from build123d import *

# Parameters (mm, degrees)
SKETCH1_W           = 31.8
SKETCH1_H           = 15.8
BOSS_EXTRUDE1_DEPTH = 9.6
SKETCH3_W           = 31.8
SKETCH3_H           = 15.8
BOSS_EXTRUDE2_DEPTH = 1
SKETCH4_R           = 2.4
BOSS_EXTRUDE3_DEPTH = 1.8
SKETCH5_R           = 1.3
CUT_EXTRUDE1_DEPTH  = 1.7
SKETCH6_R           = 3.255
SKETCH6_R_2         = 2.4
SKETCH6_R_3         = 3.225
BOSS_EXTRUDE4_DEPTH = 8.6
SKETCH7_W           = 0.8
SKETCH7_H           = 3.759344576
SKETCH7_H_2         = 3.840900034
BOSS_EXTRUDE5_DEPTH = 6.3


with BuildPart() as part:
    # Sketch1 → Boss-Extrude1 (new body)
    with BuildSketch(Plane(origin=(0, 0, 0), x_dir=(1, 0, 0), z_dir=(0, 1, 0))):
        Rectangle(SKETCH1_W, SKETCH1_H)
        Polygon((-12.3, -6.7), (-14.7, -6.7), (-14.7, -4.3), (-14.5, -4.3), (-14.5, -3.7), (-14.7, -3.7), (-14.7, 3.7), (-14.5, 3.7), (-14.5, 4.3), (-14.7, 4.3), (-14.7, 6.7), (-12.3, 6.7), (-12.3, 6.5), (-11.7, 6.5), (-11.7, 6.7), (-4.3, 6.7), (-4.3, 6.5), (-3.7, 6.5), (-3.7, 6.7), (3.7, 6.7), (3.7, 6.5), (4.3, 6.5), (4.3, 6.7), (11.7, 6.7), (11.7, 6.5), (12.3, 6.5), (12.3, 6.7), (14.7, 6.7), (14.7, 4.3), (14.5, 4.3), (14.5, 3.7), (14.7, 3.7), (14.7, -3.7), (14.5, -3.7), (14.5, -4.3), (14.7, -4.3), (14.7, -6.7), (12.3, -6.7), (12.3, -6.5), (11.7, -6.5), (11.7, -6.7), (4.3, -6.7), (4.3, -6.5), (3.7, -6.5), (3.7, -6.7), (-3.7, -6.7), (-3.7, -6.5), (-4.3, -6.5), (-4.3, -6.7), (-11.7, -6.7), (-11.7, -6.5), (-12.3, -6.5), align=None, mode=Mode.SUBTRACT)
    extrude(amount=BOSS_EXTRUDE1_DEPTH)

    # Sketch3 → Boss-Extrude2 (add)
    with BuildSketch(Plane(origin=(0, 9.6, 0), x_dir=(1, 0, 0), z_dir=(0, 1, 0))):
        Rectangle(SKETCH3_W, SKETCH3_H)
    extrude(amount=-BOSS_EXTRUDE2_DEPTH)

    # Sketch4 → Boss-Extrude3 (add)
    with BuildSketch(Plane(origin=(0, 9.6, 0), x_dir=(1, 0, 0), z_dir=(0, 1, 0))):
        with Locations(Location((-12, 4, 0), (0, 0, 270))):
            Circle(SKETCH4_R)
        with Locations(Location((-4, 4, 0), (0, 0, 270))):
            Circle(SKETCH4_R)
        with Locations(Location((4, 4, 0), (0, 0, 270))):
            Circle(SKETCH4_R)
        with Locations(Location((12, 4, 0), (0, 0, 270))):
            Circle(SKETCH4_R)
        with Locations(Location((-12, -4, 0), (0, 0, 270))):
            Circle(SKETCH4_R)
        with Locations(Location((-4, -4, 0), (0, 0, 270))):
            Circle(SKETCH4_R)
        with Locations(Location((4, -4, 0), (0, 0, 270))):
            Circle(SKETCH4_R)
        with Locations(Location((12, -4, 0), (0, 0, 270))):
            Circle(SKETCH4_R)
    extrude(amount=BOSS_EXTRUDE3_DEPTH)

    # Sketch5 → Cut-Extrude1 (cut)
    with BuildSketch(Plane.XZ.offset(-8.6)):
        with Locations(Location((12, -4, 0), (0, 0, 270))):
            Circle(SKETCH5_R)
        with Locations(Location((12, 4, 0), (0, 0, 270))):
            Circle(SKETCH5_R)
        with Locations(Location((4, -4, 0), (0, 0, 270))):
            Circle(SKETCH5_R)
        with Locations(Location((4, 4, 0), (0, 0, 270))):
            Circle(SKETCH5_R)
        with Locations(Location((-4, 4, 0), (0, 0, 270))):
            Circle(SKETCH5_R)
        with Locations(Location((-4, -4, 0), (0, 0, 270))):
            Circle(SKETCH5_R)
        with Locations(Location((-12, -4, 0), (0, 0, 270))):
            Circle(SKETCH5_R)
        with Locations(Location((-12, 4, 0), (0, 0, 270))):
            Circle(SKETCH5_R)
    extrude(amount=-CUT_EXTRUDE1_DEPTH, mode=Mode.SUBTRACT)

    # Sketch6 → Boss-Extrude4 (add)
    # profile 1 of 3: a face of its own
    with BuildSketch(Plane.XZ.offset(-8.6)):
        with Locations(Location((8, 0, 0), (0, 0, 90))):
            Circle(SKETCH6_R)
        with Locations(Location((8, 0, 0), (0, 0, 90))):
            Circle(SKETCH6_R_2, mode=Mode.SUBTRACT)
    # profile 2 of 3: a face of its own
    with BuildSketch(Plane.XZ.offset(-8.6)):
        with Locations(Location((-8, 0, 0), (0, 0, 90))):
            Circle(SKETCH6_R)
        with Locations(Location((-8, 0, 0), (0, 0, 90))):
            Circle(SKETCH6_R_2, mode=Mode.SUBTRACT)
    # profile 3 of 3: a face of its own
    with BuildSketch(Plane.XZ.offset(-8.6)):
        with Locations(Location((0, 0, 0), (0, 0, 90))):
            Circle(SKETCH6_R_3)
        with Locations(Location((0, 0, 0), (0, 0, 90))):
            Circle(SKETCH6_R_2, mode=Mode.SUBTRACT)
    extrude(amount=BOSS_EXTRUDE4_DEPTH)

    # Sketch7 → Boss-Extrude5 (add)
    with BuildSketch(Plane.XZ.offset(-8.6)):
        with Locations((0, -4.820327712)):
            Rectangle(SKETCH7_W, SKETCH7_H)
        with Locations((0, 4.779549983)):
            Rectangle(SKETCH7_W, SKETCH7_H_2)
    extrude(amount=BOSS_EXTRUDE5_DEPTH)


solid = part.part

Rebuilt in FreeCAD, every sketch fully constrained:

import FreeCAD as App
import Part
import Sketcher
from FreeCAD import Vector
Q = App.Units.Quantity

doc = App.newDocument("Part")
body = doc.addObject("PartDesign::Body", "Body")

# Sketch on XZ plane
sketch1 = body.newObject("Sketcher::SketchObject", "Sketch")
sketch1.AttachmentSupport = (doc.getObject("XZ_Plane"), [""])
sketch1.MapMode = "FlatFace"
sketch1.addGeometry([
    Part.LineSegment(Vector(-15.9, -7.9, 0), Vector(-15.9, 7.9, 0)),  # 0
    Part.LineSegment(Vector(-15.9, 7.9, 0), Vector(15.9, 7.9, 0)),  # 1
    Part.LineSegment(Vector(15.9, 7.9, 0), Vector(15.9, -7.9, 0)),  # 2
    Part.LineSegment(Vector(15.9, -7.9, 0), Vector(-15.9, -7.9, 0)),  # 3
    Part.LineSegment(Vector(-12.3, 6.5, 0), Vector(-12.3, 6.7, 0)),  # 4
    Part.LineSegment(Vector(-12.3, 6.7, 0), Vector(-14.7, 6.7, 0)),  # 5
    Part.LineSegment(Vector(-14.7, 6.7, 0), Vector(-14.7, 4.3, 0)),  # 6
    Part.LineSegment(Vector(-14.7, 4.3, 0), Vector(-14.5, 4.3, 0)),  # 7
    Part.LineSegment(Vector(-14.5, 4.3, 0), Vector(-14.5, 3.7, 0)),  # 8
    Part.LineSegment(Vector(-14.5, 3.7, 0), Vector(-14.7, 3.7, 0)),  # 9
    Part.LineSegment(Vector(-14.7, 3.7, 0), Vector(-14.7, -3.7, 0)),  # 10
    Part.LineSegment(Vector(-14.7, -3.7, 0), Vector(-14.5, -3.7, 0)),  # 11
    Part.LineSegment(Vector(-14.5, -3.7, 0), Vector(-14.5, -4.3, 0)),  # 12
    Part.LineSegment(Vector(-14.5, -4.3, 0), Vector(-14.7, -4.3, 0)),  # 13
    Part.LineSegment(Vector(-14.7, -4.3, 0), Vector(-14.7, -6.7, 0)),  # 14
    Part.LineSegment(Vector(-14.7, -6.7, 0), Vector(-12.3, -6.7, 0)),  # 15
    Part.LineSegment(Vector(-12.3, -6.7, 0), Vector(-12.3, -6.5, 0)),  # 16
    Part.LineSegment(Vector(-12.3, -6.5, 0), Vector(-11.7, -6.5, 0)),  # 17
    Part.LineSegment(Vector(-11.7, -6.5, 0), Vector(-11.7, -6.7, 0)),  # 18
    Part.LineSegment(Vector(-11.7, -6.7, 0), Vector(-4.3, -6.7, 0)),  # 19
    Part.LineSegment(Vector(-4.3, -6.7, 0), Vector(-4.3, -6.5, 0)),  # 20
    Part.LineSegment(Vector(-4.3, -6.5, 0), Vector(-3.7, -6.5, 0)),  # 21
    Part.LineSegment(Vector(-3.7, -6.5, 0), Vector(-3.7, -6.7, 0)),  # 22
    Part.LineSegment(Vector(-3.7, -6.7, 0), Vector(3.7, -6.7, 0)),  # 23
    Part.LineSegment(Vector(3.7, -6.7, 0), Vector(3.7, -6.5, 0)),  # 24
    Part.LineSegment(Vector(3.7, -6.5, 0), Vector(4.3, -6.5, 0)),  # 25
    Part.LineSegment(Vector(4.3, -6.5, 0), Vector(4.3, -6.7, 0)),  # 26
    Part.LineSegment(Vector(4.3, -6.7, 0), Vector(11.7, -6.7, 0)),  # 27
    Part.LineSegment(Vector(11.7, -6.7, 0), Vector(11.7, -6.5, 0)),  # 28
    Part.LineSegment(Vector(11.7, -6.5, 0), Vector(12.3, -6.5, 0)),  # 29
    Part.LineSegment(Vector(12.3, -6.5, 0), Vector(12.3, -6.7, 0)),  # 30
    Part.LineSegment(Vector(12.3, -6.7, 0), Vector(14.7, -6.7, 0)),  # 31
    Part.LineSegment(Vector(14.7, -6.7, 0), Vector(14.7, -4.3, 0)),  # 32
    Part.LineSegment(Vector(14.7, -4.3, 0), Vector(14.5, -4.3, 0)),  # 33
    Part.LineSegment(Vector(14.5, -4.3, 0), Vector(14.5, -3.7, 0)),  # 34
    Part.LineSegment(Vector(14.5, -3.7, 0), Vector(14.7, -3.7, 0)),  # 35
    Part.LineSegment(Vector(14.7, -3.7, 0), Vector(14.7, 3.7, 0)),  # 36
    Part.LineSegment(Vector(14.7, 3.7, 0), Vector(14.5, 3.7, 0)),  # 37
    Part.LineSegment(Vector(14.5, 3.7, 0), Vector(14.5, 4.3, 0)),  # 38
    Part.LineSegment(Vector(14.5, 4.3, 0), Vector(14.7, 4.3, 0)),  # 39
    Part.LineSegment(Vector(14.7, 4.3, 0), Vector(14.7, 6.7, 0)),  # 40
    Part.LineSegment(Vector(14.7, 6.7, 0), Vector(12.3, 6.7, 0)),  # 41
    Part.LineSegment(Vector(12.3, 6.7, 0), Vector(12.3, 6.5, 0)),  # 42
    Part.LineSegment(Vector(12.3, 6.5, 0), Vector(11.7, 6.5, 0)),  # 43
    Part.LineSegment(Vector(11.7, 6.5, 0), Vector(11.7, 6.7, 0)),  # 44
    Part.LineSegment(Vector(11.7, 6.7, 0), Vector(4.3, 6.7, 0)),  # 45
    Part.LineSegment(Vector(4.3, 6.7, 0), Vector(4.3, 6.5, 0)),  # 46
    Part.LineSegment(Vector(4.3, 6.5, 0), Vector(3.7, 6.5, 0)),  # 47
    Part.LineSegment(Vector(3.7, 6.5, 0), Vector(3.7, 6.7, 0)),  # 48
    Part.LineSegment(Vector(3.7, 6.7, 0), Vector(-3.7, 6.7, 0)),  # 49
    Part.LineSegment(Vector(-3.7, 6.7, 0), Vector(-3.7, 6.5, 0)),  # 50
    Part.LineSegment(Vector(-3.7, 6.5, 0), Vector(-4.3, 6.5, 0)),  # 51
    Part.LineSegment(Vector(-4.3, 6.5, 0), Vector(-4.3, 6.7, 0)),  # 52
    Part.LineSegment(Vector(-4.3, 6.7, 0), Vector(-11.7, 6.7, 0)),  # 53
    Part.LineSegment(Vector(-11.7, 6.7, 0), Vector(-11.7, 6.5, 0)),  # 54
    Part.LineSegment(Vector(-11.7, 6.5, 0), Vector(-12.3, 6.5, 0)),  # 55
], False)
sketch1.addConstraint([
    Sketcher.Constraint("Coincident", 0, 2, 1, 1),
    Sketcher.Constraint("Coincident", 1, 2, 2, 1),
    Sketcher.Constraint("Coincident", 2, 2, 3, 1),
    Sketcher.Constraint("Coincident", 3, 2, 0, 1),
    Sketcher.Constraint("Coincident", 4, 2, 5, 1),
    Sketcher.Constraint("Coincident", 5, 2, 6, 1),
    Sketcher.Constraint("Coincident", 6, 2, 7, 1),
    Sketcher.Constraint("Coincident", 7, 2, 8, 1),
    Sketcher.Constraint("Coincident", 8, 2, 9, 1),
    Sketcher.Constraint("Coincident", 9, 2, 10, 1),
    Sketcher.Constraint("Coincident", 10, 2, 11, 1),
    Sketcher.Constraint("Coincident", 11, 2, 12, 1),
    Sketcher.Constraint("Coincident", 12, 2, 13, 1),
    Sketcher.Constraint("Coincident", 13, 2, 14, 1),
    Sketcher.Constraint("Coincident", 14, 2, 15, 1),
    Sketcher.Constraint("Coincident", 15, 2, 16, 1),
    Sketcher.Constraint("Coincident", 16, 2, 17, 1),
    Sketcher.Constraint("Coincident", 17, 2, 18, 1),
    Sketcher.Constraint("Coincident", 18, 2, 19, 1),
    Sketcher.Constraint("Coincident", 19, 2, 20, 1),
    Sketcher.Constraint("Coincident", 20, 2, 21, 1),
    Sketcher.Constraint("Coincident", 21, 2, 22, 1),
    Sketcher.Constraint("Coincident", 22, 2, 23, 1),
    Sketcher.Constraint("Coincident", 23, 2, 24, 1),
    Sketcher.Constraint("Coincident", 24, 2, 25, 1),
    Sketcher.Constraint("Coincident", 25, 2, 26, 1),
    Sketcher.Constraint("Coincident", 26, 2, 27, 1),
    Sketcher.Constraint("Coincident", 27, 2, 28, 1),
    Sketcher.Constraint("Coincident", 28, 2, 29, 1),
    Sketcher.Constraint("Coincident", 29, 2, 30, 1),
    Sketcher.Constraint("Coincident", 30, 2, 31, 1),
    Sketcher.Constraint("Coincident", 31, 2, 32, 1),
    Sketcher.Constraint("Coincident", 32, 2, 33, 1),
    Sketcher.Constraint("Coincident", 33, 2, 34, 1),
    Sketcher.Constraint("Coincident", 34, 2, 35, 1),
    Sketcher.Constraint("Coincident", 35, 2, 36, 1),
    Sketcher.Constraint("Coincident", 36, 2, 37, 1),
    Sketcher.Constraint("Coincident", 37, 2, 38, 1),
    Sketcher.Constraint("Coincident", 38, 2, 39, 1),
    Sketcher.Constraint("Coincident", 39, 2, 40, 1),
    Sketcher.Constraint("Coincident", 40, 2, 41, 1),
    Sketcher.Constraint("Coincident", 41, 2, 42, 1),
    Sketcher.Constraint("Coincident", 42, 2, 43, 1),
    Sketcher.Constraint("Coincident", 43, 2, 44, 1),
    Sketcher.Constraint("Coincident", 44, 2, 45, 1),
    Sketcher.Constraint("Coincident", 45, 2, 46, 1),
    Sketcher.Constraint("Coincident", 46, 2, 47, 1),
    Sketcher.Constraint("Coincident", 47, 2, 48, 1),
    Sketcher.Constraint("Coincident", 48, 2, 49, 1),
    Sketcher.Constraint("Coincident", 49, 2, 50, 1),
    Sketcher.Constraint("Coincident", 50, 2, 51, 1),
    Sketcher.Constraint("Coincident", 51, 2, 52, 1),
    Sketcher.Constraint("Coincident", 52, 2, 53, 1),
    Sketcher.Constraint("Coincident", 53, 2, 54, 1),
    Sketcher.Constraint("Coincident", 54, 2, 55, 1),
    Sketcher.Constraint("Coincident", 55, 2, 4, 1),
    Sketcher.Constraint("Vertical", 0),
    Sketcher.Constraint("Horizontal", 1),
    Sketcher.Constraint("Vertical", 2),
    Sketcher.Constraint("Horizontal", 3),
    Sketcher.Constraint("Vertical", 4),
    Sketcher.Constraint("Horizontal", 5),
    Sketcher.Constraint("Vertical", 6),
    Sketcher.Constraint("Horizontal", 7),
    Sketcher.Constraint("Vertical", 8),
    Sketcher.Constraint("Horizontal", 9),
    Sketcher.Constraint("Vertical", 10),
    Sketcher.Constraint("Horizontal", 11),
    Sketcher.Constraint("Vertical", 12),
    Sketcher.Constraint("Horizontal", 13),
    Sketcher.Constraint("Vertical", 14),
    Sketcher.Constraint("Horizontal", 15),
    Sketcher.Constraint("Vertical", 16),
    Sketcher.Constraint("Horizontal", 17),
    Sketcher.Constraint("Vertical", 18),
    Sketcher.Constraint("Horizontal", 19),
    Sketcher.Constraint("Vertical", 20),
    Sketcher.Constraint("Horizontal", 21),
    Sketcher.Constraint("Vertical", 22),
    Sketcher.Constraint("Horizontal", 23),
    Sketcher.Constraint("Vertical", 24),
    Sketcher.Constraint("Horizontal", 25),
    Sketcher.Constraint("Vertical", 26),
    Sketcher.Constraint("Horizontal", 27),
    Sketcher.Constraint("Vertical", 28),
    Sketcher.Constraint("Horizontal", 29),
    Sketcher.Constraint("Vertical", 30),
    Sketcher.Constraint("Horizontal", 31),
    Sketcher.Constraint("Vertical", 32),
    Sketcher.Constraint("Horizontal", 33),
    Sketcher.Constraint("Vertical", 34),
    Sketcher.Constraint("Horizontal", 35),
    Sketcher.Constraint("Vertical", 36),
    Sketcher.Constraint("Horizontal", 37),
    Sketcher.Constraint("Vertical", 38),
    Sketcher.Constraint("Horizontal", 39),
    Sketcher.Constraint("Vertical", 40),
    Sketcher.Constraint("Horizontal", 41),
    Sketcher.Constraint("Vertical", 42),
    Sketcher.Constraint("Horizontal", 43),
    Sketcher.Constraint("Vertical", 44),
    Sketcher.Constraint("Horizontal", 45),
    Sketcher.Constraint("Vertical", 46),
    Sketcher.Constraint("Horizontal", 47),
    Sketcher.Constraint("Vertical", 48),
    Sketcher.Constraint("Horizontal", 49),
    Sketcher.Constraint("Vertical", 50),
    Sketcher.Constraint("Horizontal", 51),
    Sketcher.Constraint("Vertical", 52),
    Sketcher.Constraint("Horizontal", 53),
    Sketcher.Constraint("Vertical", 54),
    Sketcher.Constraint("Horizontal", 55),
    Sketcher.Constraint("Symmetric", 0, 2, 2, 2, -1, 1),
    Sketcher.Constraint("Symmetric", 4, 2, 30, 2, -1, 1),
    Sketcher.Constraint("Symmetric", 6, 2, 32, 2, -1, 1),
    Sketcher.Constraint("Symmetric", 8, 2, 34, 2, -1, 1),
    Sketcher.Constraint("Symmetric", 10, 2, 36, 2, -1, 1),
    Sketcher.Constraint("Symmetric", 12, 2, 38, 2, -1, 1),
    Sketcher.Constraint("Symmetric", 14, 2, 40, 2, -1, 1),
    Sketcher.Constraint("Symmetric", 16, 2, 42, 2, -1, 1),
    Sketcher.Constraint("Symmetric", 18, 2, 44, 2, -1, 1),
    Sketcher.Constraint("Symmetric", 20, 2, 46, 2, -1, 1),
    Sketcher.Constraint("Symmetric", 22, 2, 48, 2, -1, 1),
    Sketcher.Constraint("Symmetric", 24, 2, 50, 2, -1, 1),
    Sketcher.Constraint("Symmetric", 26, 2, 52, 2, -1, 1),
    Sketcher.Constraint("Symmetric", 28, 2, 54, 2, -1, 1),
    Sketcher.Constraint("Symmetric", 21, 2, 24, 2, -2),
    Sketcher.Constraint("Symmetric", 19, 2, 26, 2, -2),
    Sketcher.Constraint("Symmetric", 17, 2, 28, 2, -2),
    Sketcher.Constraint("Symmetric", 15, 2, 30, 2, -2),
    Sketcher.Constraint("Symmetric", 13, 2, 32, 2, -2),
    Sketcher.Constraint("Symmetric", 11, 2, 34, 2, -2),
    Sketcher.Constraint("Horizontal", 15, 2, 18, 2),
    Sketcher.Constraint("Horizontal", 17, 2, 20, 2),
    Sketcher.Constraint("Horizontal", 19, 2, 22, 2),
    Sketcher.Constraint("Vertical", 6, 2, 9, 2),
    Sketcher.Constraint("Equal", 17, 21),
    Sketcher.Constraint("Equal", 19, 23),
    Sketcher.Constraint("Equal", 39, 4),
    Sketcher.Constraint("Equal", 41, 6),
    Sketcher.Constraint("Equal", 55, 8),
    Sketcher.Constraint("Equal", 53, 10),
    Sketcher.Constraint("DistanceX", 1, 1, 1, 2, Q("31.8 mm")),
    Sketcher.Constraint("DistanceX", 5, 2, 5, 1, Q("2.4 mm")),
    Sketcher.Constraint("DistanceX", 7, 1, 7, 2, Q("0.2 mm")),
    Sketcher.Constraint("DistanceX", 17, 1, 17, 2, Q("0.6 mm")),
    Sketcher.Constraint("DistanceX", 19, 1, 19, 2, Q("7.4 mm")),
    Sketcher.Constraint("DistanceY", 0, 1, 0, 2, Q("15.8 mm")),
])
pad1 = body.newObject("PartDesign::Pad", "Pad")
pad1.Profile = sketch1
pad1.Length = 9.6
pad1.Reversed = True

# Sketch on XZ plane
sketch2 = body.newObject("Sketcher::SketchObject", "Sketch001")
sketch2.AttachmentSupport = (doc.getObject("XZ_Plane"), [""])
sketch2.MapMode = "FlatFace"
sketch2.AttachmentOffset = App.Placement(Vector(0, 0, -9.6), App.Rotation())
sketch2.addGeometry([
    Part.LineSegment(Vector(-16, -8, 0), Vector(-16, 8, 0)),
    Part.LineSegment(Vector(-16, 8, 0), Vector(16, 8, 0)),
    Part.LineSegment(Vector(16, 8, 0), Vector(16, -8, 0)),
    Part.LineSegment(Vector(16, -8, 0), Vector(-16, -8, 0)),
], False)
sketch2.addConstraint([
    Sketcher.Constraint("Coincident", 0, 2, 1, 1),
    Sketcher.Constraint("Coincident", 1, 2, 2, 1),
    Sketcher.Constraint("Coincident", 2, 2, 3, 1),
    Sketcher.Constraint("Coincident", 3, 2, 0, 1),
    Sketcher.Constraint("Vertical", 0),
    Sketcher.Constraint("Horizontal", 1),
    Sketcher.Constraint("Vertical", 2),
    Sketcher.Constraint("Horizontal", 3),
    Sketcher.Constraint("Symmetric", 0, 2, 2, 2, -1, 1),
    Sketcher.Constraint("DistanceX", 1, 1, 1, 2, Q("31.8 mm")),
    Sketcher.Constraint("DistanceY", 0, 1, 0, 2, Q("15.8 mm")),
])
pad2 = body.newObject("PartDesign::Pad", "Pad001")
pad2.Profile = sketch2
pad2.Length = 1

# Sketch on XZ plane
sketch3 = body.newObject("Sketcher::SketchObject", "Sketch002")
sketch3.AttachmentSupport = (doc.getObject("XZ_Plane"), [""])
sketch3.MapMode = "FlatFace"
sketch3.AttachmentOffset = App.Placement(Vector(0, 0, -9.6), App.Rotation())
sketch3.addGeometry([
    Part.Circle(Vector(-12, -4, 0), Vector(0, 0, 1), 2.4),  # 0
    Part.Circle(Vector(-4, -4, 0), Vector(0, 0, 1), 2.4),  # 1
    Part.Circle(Vector(4, -4, 0), Vector(0, 0, 1), 2.4),  # 2
    Part.Circle(Vector(12, -4, 0), Vector(0, 0, 1), 2.4),  # 3
    Part.Circle(Vector(-12, 4, 0), Vector(0, 0, 1), 2.4),  # 4
    Part.Circle(Vector(-4, 4, 0), Vector(0, 0, 1), 2.4),  # 5
    Part.Circle(Vector(4, 4, 0), Vector(0, 0, 1), 2.4),  # 6
    Part.Circle(Vector(12, 4, 0), Vector(0, 0, 1), 2.4),  # 7
], False)
sketch3.addConstraint([
    Sketcher.Constraint("Equal", 0, 1),
    Sketcher.Constraint("Equal", 1, 2),
    Sketcher.Constraint("Equal", 2, 3),
    Sketcher.Constraint("Equal", 3, 4),
    Sketcher.Constraint("Equal", 4, 5),
    Sketcher.Constraint("Equal", 5, 6),
    Sketcher.Constraint("Equal", 6, 7),
    Sketcher.Constraint("Symmetric", 3, 3, 4, 3, -1, 1),
    Sketcher.Constraint("Symmetric", 2, 3, 5, 3, -1, 1),
    Sketcher.Constraint("Symmetric", 1, 3, 6, 3, -1, 1),
    Sketcher.Constraint("Symmetric", 0, 3, 7, 3, -1, 1),
    Sketcher.Constraint("Symmetric", 1, 3, 2, 3, -2),
    Sketcher.Constraint("Symmetric", 0, 3, 3, 3, -2),
    Sketcher.Constraint("Horizontal", 0, 3, 1, 3),
    Sketcher.Constraint("Diameter", 0, Q("4.8 mm")),
    Sketcher.Constraint("DistanceX", 0, 3, -1, 1, Q("12 mm")),
    Sketcher.Constraint("DistanceY", 0, 3, -1, 1, Q("4 mm")),
    Sketcher.Constraint("DistanceX", 1, 3, -1, 1, Q("4 mm")),
])
pad3 = body.newObject("PartDesign::Pad", "Pad002")
pad3.Profile = sketch3
pad3.Length = 1.8
pad3.Reversed = True

# Sketch on XZ plane
sketch4 = body.newObject("Sketcher::SketchObject", "Sketch003")
sketch4.AttachmentSupport = (doc.getObject("XZ_Plane"), [""])
sketch4.MapMode = "FlatFace"
sketch4.AttachmentOffset = App.Placement(Vector(0, 0, -8.6), App.Rotation())
sketch4.addGeometry([
    Part.Circle(Vector(12, -4, 0), Vector(0, 0, 1), 1.3),  # 0
    Part.Circle(Vector(12, 4, 0), Vector(0, 0, 1), 1.3),  # 1
    Part.Circle(Vector(4, -4, 0), Vector(0, 0, 1), 1.3),  # 2
    Part.Circle(Vector(4, 4, 0), Vector(0, 0, 1), 1.3),  # 3
    Part.Circle(Vector(-4, 4, 0), Vector(0, 0, 1), 1.3),  # 4
    Part.Circle(Vector(-4, -4, 0), Vector(0, 0, 1), 1.3),  # 5
    Part.Circle(Vector(-12, -4, 0), Vector(0, 0, 1), 1.3),  # 6
    Part.Circle(Vector(-12, 4, 0), Vector(0, 0, 1), 1.3),  # 7
], False)
sketch4.addConstraint([
    Sketcher.Constraint("Equal", 0, 1),
    Sketcher.Constraint("Equal", 1, 2),
    Sketcher.Constraint("Equal", 2, 3),
    Sketcher.Constraint("Equal", 3, 4),
    Sketcher.Constraint("Equal", 4, 5),
    Sketcher.Constraint("Equal", 5, 6),
    Sketcher.Constraint("Equal", 6, 7),
    Sketcher.Constraint("Symmetric", 2, 3, 4, 3, -1, 1),
    Sketcher.Constraint("Symmetric", 3, 3, 5, 3, -1, 1),
    Sketcher.Constraint("Symmetric", 1, 3, 6, 3, -1, 1),
    Sketcher.Constraint("Symmetric", 0, 3, 7, 3, -1, 1),
    Sketcher.Constraint("Symmetric", 3, 3, 4, 3, -2),
    Sketcher.Constraint("Symmetric", 0, 3, 6, 3, -2),
    Sketcher.Constraint("Horizontal", 0, 3, 2, 3),
    Sketcher.Constraint("Diameter", 0, Q("2.6 mm")),
    Sketcher.Constraint("DistanceX", -1, 1, 0, 3, Q("12 mm")),
    Sketcher.Constraint("DistanceY", 0, 3, -1, 1, Q("4 mm")),
    Sketcher.Constraint("DistanceX", -1, 1, 2, 3, Q("4 mm")),
])
pocket1 = body.newObject("PartDesign::Pocket", "Pocket")
pocket1.Profile = sketch4
pocket1.Length = 1.7

# Sketch on XZ plane
sketch5 = body.newObject("Sketcher::SketchObject", "Sketch004")
sketch5.AttachmentSupport = (doc.getObject("XZ_Plane"), [""])
sketch5.MapMode = "FlatFace"
sketch5.AttachmentOffset = App.Placement(Vector(0, 0, -8.6), App.Rotation())
sketch5.addGeometry([
    Part.Circle(Vector(8, 0, 0), Vector(0, 0, 1), 3.3),  # 0
    Part.Circle(Vector(8, 0, 0), Vector(0, 0, 1), 2.4),  # 1
    Part.Circle(Vector(-8, 0, 0), Vector(0, 0, 1), 3.3),  # 2
    Part.Circle(Vector(-8, 0, 0), Vector(0, 0, 1), 2.4),  # 3
    Part.Circle(Vector(0, 0, 0), Vector(0, 0, 1), 3.2),  # 4
    Part.Circle(Vector(0, 0, 0), Vector(0, 0, 1), 2.4),  # 5
], False)
sketch5.addConstraint([
    Sketcher.Constraint("Coincident", 4, 3, -1, 1),
    Sketcher.Constraint("Coincident", 5, 3, -1, 1),
    Sketcher.Constraint("Coincident", 1, 3, 0, 3),
    Sketcher.Constraint("Coincident", 3, 3, 2, 3),
    Sketcher.Constraint("Equal", 0, 2),
    Sketcher.Constraint("Equal", 1, 3),
    Sketcher.Constraint("Equal", 3, 5),
    Sketcher.Constraint("Symmetric", 0, 3, 2, 3, -1, 1),
    Sketcher.Constraint("PointOnObject", 0, 3, -1),
    Sketcher.Constraint("Diameter", 1, Q("4.8 mm")),
    Sketcher.Constraint("Diameter", 0, Q("6.51 mm")),
    Sketcher.Constraint("Diameter", 4, Q("6.45 mm")),
    Sketcher.Constraint("DistanceX", -1, 1, 0, 3, Q("8 mm")),
])
pad4 = body.newObject("PartDesign::Pad", "Pad003")
pad4.Profile = sketch5
pad4.Length = 8.6

# Sketch on XZ plane
sketch6 = body.newObject("Sketcher::SketchObject", "Sketch005")
sketch6.AttachmentSupport = (doc.getObject("XZ_Plane"), [""])
sketch6.MapMode = "FlatFace"
sketch6.AttachmentOffset = App.Placement(Vector(0, 0, -8.6), App.Rotation())
sketch6.addGeometry([
    Part.LineSegment(Vector(-0.4, -2.9, 0), Vector(-0.4, -6.7, 0)),  # 0
    Part.LineSegment(Vector(-0.4, -6.7, 0), Vector(0.4, -6.7, 0)),  # 1
    Part.LineSegment(Vector(0.4, -6.7, 0), Vector(0.4, -2.9, 0)),  # 2
    Part.LineSegment(Vector(0.4, -2.9, 0), Vector(-0.4, -2.9, 0)),  # 3
    Part.LineSegment(Vector(-0.4, 6.7, 0), Vector(-0.4, 2.9, 0)),  # 4
    Part.LineSegment(Vector(-0.4, 2.9, 0), Vector(0.4, 2.9, 0)),  # 5
    Part.LineSegment(Vector(0.4, 2.9, 0), Vector(0.4, 6.7, 0)),  # 6
    Part.LineSegment(Vector(0.4, 6.7, 0), Vector(-0.4, 6.7, 0)),  # 7
], False)
sketch6.addConstraint([
    Sketcher.Constraint("Coincident", 0, 2, 1, 1),
    Sketcher.Constraint("Coincident", 1, 2, 2, 1),
    Sketcher.Constraint("Coincident", 2, 2, 3, 1),
    Sketcher.Constraint("Coincident", 3, 2, 0, 1),
    Sketcher.Constraint("Coincident", 4, 2, 5, 1),
    Sketcher.Constraint("Coincident", 5, 2, 6, 1),
    Sketcher.Constraint("Coincident", 6, 2, 7, 1),
    Sketcher.Constraint("Coincident", 7, 2, 4, 1),
    Sketcher.Constraint("Vertical", 0),
    Sketcher.Constraint("Horizontal", 1),
    Sketcher.Constraint("Vertical", 2),
    Sketcher.Constraint("Horizontal", 3),
    Sketcher.Constraint("Vertical", 4),
    Sketcher.Constraint("Horizontal", 5),
    Sketcher.Constraint("Vertical", 6),
    Sketcher.Constraint("Horizontal", 7),
    Sketcher.Constraint("Symmetric", 0, 2, 6, 2, -1, 1),
    Sketcher.Constraint("Vertical", 3, 2, 4, 2),
    Sketcher.Constraint("Vertical", 2, 2, 5, 2),
    Sketcher.Constraint("DistanceX", 1, 1, 1, 2, Q("0.8 mm")),
    Sketcher.Constraint("DistanceY", 0, 2, -1, 1, Q("6.7 mm")),
    Sketcher.Constraint("DistanceY", 4, 2, 4, 1, Q("3.8409 mm")),
    Sketcher.Constraint("DistanceY", 0, 2, 0, 1, Q("3.759345 mm")),
])
pad5 = body.newObject("PartDesign::Pad", "Pad004")
pad5.Profile = sketch6
pad5.Length = 6.3

doc.recompute()
